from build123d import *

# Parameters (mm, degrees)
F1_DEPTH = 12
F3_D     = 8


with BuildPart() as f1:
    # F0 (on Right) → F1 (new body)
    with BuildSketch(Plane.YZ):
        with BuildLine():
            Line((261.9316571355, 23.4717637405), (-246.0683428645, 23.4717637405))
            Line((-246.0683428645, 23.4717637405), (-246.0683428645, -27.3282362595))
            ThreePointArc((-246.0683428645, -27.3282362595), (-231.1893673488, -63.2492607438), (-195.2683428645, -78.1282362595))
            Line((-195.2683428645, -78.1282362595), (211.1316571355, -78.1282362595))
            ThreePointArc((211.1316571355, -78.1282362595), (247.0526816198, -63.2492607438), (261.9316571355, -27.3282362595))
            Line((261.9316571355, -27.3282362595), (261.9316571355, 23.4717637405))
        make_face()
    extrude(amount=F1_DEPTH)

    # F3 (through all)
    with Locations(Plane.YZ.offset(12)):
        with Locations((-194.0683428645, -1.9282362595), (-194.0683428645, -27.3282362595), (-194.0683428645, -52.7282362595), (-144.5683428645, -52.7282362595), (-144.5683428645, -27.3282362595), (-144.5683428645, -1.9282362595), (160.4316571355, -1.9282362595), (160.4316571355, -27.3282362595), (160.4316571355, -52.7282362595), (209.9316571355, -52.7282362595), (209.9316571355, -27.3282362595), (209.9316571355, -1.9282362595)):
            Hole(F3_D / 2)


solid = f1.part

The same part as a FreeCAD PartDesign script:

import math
import FreeCAD as App
import Part
import Sketcher
from FreeCAD import Vector
Q = App.Units.Quantity

doc = App.newDocument("Part")
body = doc.addObject("PartDesign::Body", "Body")

sketch1 = body.newObject("Sketcher::SketchObject", "Sketch")
sketch1.AttachmentSupport = (doc.getObject("YZ_Plane"), [""])
sketch1.MapMode = "FlatFace"
sketch1.addGeometry([
    Part.LineSegment(Vector(261.931657, 23.471764, 0), Vector(-246.068343, 23.471764, 0)),
    Part.LineSegment(Vector(-246.068343, 23.471764, 0), Vector(-246.068343, -27.328236, 0)),
    Part.ArcOfCircle(Part.Circle(Vector(-195.268343, -27.328236, 0), Vector(0, 0, 1), 50.8), math.radians(180), math.radians(270)),
    Part.LineSegment(Vector(-195.268343, -78.128236, 0), Vector(211.131657, -78.128236, 0)),
    Part.ArcOfCircle(Part.Circle(Vector(211.131657, -27.328236, 0), Vector(0, 0, 1), 50.8), math.radians(-90), math.radians(0)),
    Part.LineSegment(Vector(261.931657, -27.328236, 0), Vector(261.931657, 23.471764, 0)),
], False)
sketch1.addConstraint([
    Sketcher.Constraint("Coincident", 0, 2, 1, 1),
    Sketcher.Constraint("Tangent", 1, 2, 2, 1),
    Sketcher.Constraint("Tangent", 2, 2, 3, 1),
    Sketcher.Constraint("Tangent", 3, 2, 4, 1),
    Sketcher.Constraint("Tangent", 4, 2, 5, 1),
    Sketcher.Constraint("Coincident", 5, 2, 0, 1),
    Sketcher.Constraint("Horizontal", 0),
    Sketcher.Constraint("Vertical", 1),
    Sketcher.Constraint("Horizontal", 3),
    Sketcher.Constraint("Vertical", 5),
    Sketcher.Constraint("Equal", 2, 4),
    Sketcher.Constraint("Radius", 2, Q("2 in")),
    Sketcher.Constraint("DistanceX", 0, 2, 0, 1, Q("20 in")),
    Sketcher.Constraint("DistanceY", 1, 2, 1, 1, Q("2 in")),
    Sketcher.Constraint("DistanceX", 2, 3, -1, 1, 195.268343),
    Sketcher.Constraint("DistanceY", 2, 3, -1, 1, 27.328236),
])
pad1 = body.newObject("PartDesign::Pad", "Pad")
pad1.Profile = sketch1
pad1.Length = 12

sketch2 = body.newObject("Sketcher::SketchObject", "Sketch001")
sketch2.AttachmentSupport = (doc.getObject("YZ_Plane"), [""])
sketch2.MapMode = "FlatFace"
sketch2.AttachmentOffset = App.Placement(Vector(0, 0, 12), App.Rotation())
sketch2.addGeometry([
    Part.Circle(Vector(-194.068343, -1.928236, 0), Vector(0, 0, 1), 4),
    Part.Circle(Vector(-194.068343, -27.328236, 0), Vector(0, 0, 1), 4),
    Part.Circle(Vector(-194.068343, -52.728236, 0), Vector(0, 0, 1), 4),
    Part.Circle(Vector(-144.568343, -52.728236, 0), Vector(0, 0, 1), 4),
    Part.Circle(Vector(-144.568343, -27.328236, 0), Vector(0, 0, 1), 4),
    Part.Circle(Vector(-144.568343, -1.928236, 0), Vector(0, 0, 1), 4),
    Part.Circle(Vector(160.431657, -1.928236, 0), Vector(0, 0, 1), 4),
    Part.Circle(Vector(160.431657, -27.328236, 0), Vector(0, 0, 1), 4),
    Part.Circle(Vector(160.431657, -52.728236, 0), Vector(0, 0, 1), 4),
    Part.Circle(Vector(209.931657, -52.728236, 0), Vector(0, 0, 1), 4),
    Part.Circle(Vector(209.931657, -27.328236, 0), Vector(0, 0, 1), 4),
    Part.Circle(Vector(209.931657, -1.928236, 0), Vector(0, 0, 1), 4),
], False)
sketch2.addConstraint([
    Sketcher.Constraint("Equal", 0, 1),
    Sketcher.Constraint("Equal", 1, 2),
    Sketcher.Constraint("Equal", 2, 3),
    Sketcher.Constraint("Equal", 3, 4),
    Sketcher.Constraint("Equal", 4, 5),
    Sketcher.Constraint("Equal", 5, 6),
    Sketcher.Constraint("Equal", 6, 7),
    Sketcher.Constraint("Equal", 7, 8),
    Sketcher.Constraint("Equal", 8, 9),
    Sketcher.Constraint("Equal", 9, 10),
    Sketcher.Constraint("Equal", 10, 11),
    Sketcher.Constraint("Horizontal", 2, 3, 3, 3),
    Sketcher.Constraint("Horizontal", 1, 3, 4, 3),
    Sketcher.Constraint("Horizontal", 0, 3, 5, 3),
    Sketcher.Constraint("Horizontal", 5, 3, 6, 3),
    Sketcher.Constraint("Horizontal", 4, 3, 7, 3),
    Sketcher.Constraint("Horizontal", 3, 3, 8, 3),
    Sketcher.Constraint("Horizontal", 8, 3, 9, 3),
    Sketcher.Constraint("Horizontal", 7, 3, 10, 3),
    Sketcher.Constraint("Horizontal", 6, 3, 11, 3),
    Sketcher.Constraint("Vertical", 0, 3, 1, 3),
    Sketcher.Constraint("Vertical", 1, 3, 2, 3),
    Sketcher.Constraint("Vertical", 3, 3, 4, 3),
    Sketcher.Constraint("Vertical", 4, 3, 5, 3),
    Sketcher.Constraint("Vertical", 6, 3, 7, 3),
    Sketcher.Constraint("Vertical", 7, 3, 8, 3),
    Sketcher.Constraint("Vertical", 9, 3, 10, 3),
    Sketcher.Constraint("Vertical", 10, 3, 11, 3),
    Sketcher.Constraint("DistanceY", 1, 3, 0, 3, Q("1 in")),
    Sketcher.Constraint("DistanceY", 2, 3, 1, 3, Q("1 in")),
    Sketcher.Constraint("Diameter", 0, 8.0),
    Sketcher.Constraint("DistanceX", 2, 3, 3, 3, 49.5),
    Sketcher.Constraint("DistanceX", 5, 3, 6, 3, 305.0),
    Sketcher.Constraint("DistanceX", 8, 3, 9, 3, 49.5),
    Sketcher.Constraint("DistanceX", 0, 3, -1, 1, 194.068343),
    Sketcher.Constraint("DistanceY", 0, 3, -1, 1, 1.928236),
])
doc.recompute()
hole = body.newObject("PartDesign::Hole", "Hole")
hole.Profile = sketch2
hole.ThreadType = "None"
hole.Diameter = 8
hole.DepthType = "ThroughAll"

doc.recompute()
